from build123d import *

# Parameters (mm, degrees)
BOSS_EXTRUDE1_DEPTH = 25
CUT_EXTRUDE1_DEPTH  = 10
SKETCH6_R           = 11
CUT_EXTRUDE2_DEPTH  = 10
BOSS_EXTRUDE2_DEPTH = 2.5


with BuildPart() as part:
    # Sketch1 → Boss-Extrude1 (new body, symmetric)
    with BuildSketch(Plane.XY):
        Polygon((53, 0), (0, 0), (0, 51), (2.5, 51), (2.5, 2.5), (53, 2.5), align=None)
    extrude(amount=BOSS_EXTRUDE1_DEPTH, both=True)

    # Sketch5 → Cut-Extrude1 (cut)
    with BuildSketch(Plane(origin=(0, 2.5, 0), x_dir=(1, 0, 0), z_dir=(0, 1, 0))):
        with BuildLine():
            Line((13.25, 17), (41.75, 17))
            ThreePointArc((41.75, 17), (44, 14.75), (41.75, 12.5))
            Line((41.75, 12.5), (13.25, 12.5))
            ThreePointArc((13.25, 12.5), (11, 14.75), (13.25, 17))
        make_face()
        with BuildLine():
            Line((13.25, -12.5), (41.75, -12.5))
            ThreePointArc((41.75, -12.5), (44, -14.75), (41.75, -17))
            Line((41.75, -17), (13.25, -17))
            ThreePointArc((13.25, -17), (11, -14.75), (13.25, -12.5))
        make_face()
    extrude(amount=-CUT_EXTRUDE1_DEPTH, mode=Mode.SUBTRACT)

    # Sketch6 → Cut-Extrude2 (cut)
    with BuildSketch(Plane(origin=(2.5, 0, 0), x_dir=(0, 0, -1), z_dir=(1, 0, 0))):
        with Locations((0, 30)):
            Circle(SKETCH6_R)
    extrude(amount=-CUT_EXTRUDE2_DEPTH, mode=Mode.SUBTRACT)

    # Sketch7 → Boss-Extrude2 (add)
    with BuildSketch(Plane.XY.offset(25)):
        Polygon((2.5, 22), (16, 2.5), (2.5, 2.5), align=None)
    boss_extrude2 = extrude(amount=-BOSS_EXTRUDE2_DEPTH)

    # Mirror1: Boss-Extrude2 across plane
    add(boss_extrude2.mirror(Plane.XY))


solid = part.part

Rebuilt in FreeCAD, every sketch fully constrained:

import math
import FreeCAD as App
import Part
import Sketcher
from FreeCAD import Vector
Q = App.Units.Quantity


def add_polygon(sketch, points):
    """Adds a closed chain of lines whose ends are joined by coincident constraints."""
    first, n = sketch.GeometryCount, len(points)
    for a, b in zip(points, points[1:] + points[:1]):
        sketch.addGeometry(Part.LineSegment(App.Vector(*a, 0), App.Vector(*b, 0)), False)
    for i in range(n):
        sketch.addConstraint(Sketcher.Constraint("Coincident", first + i, 2, first + (i + 1) % n, 1))

doc = App.newDocument("Part")
params = doc.addObject("Spreadsheet::Sheet", "Params")
for row, (alias, value) in enumerate([
    ("sketch1_width", "53 mm"),
    ("sketch1_height", "51 mm"),
    ("sketch1_width2", "50.5 mm"),
    ("pad1_length", "50 mm"),
    ("sketch2_radius", "2.25 mm"),
    ("sketch2_width", "28.5 mm"),
    ("pocket1_length", "10 mm"),
    ("sketch3_diameter", "22 mm"),
    ("pocket2_length", "10 mm"),
    ("sketch4_width", "13.5 mm"),
    ("sketch4_height", "19.5 mm"),
    ("pad2_length", "2.5 mm"),
], start=1):
    params.set(f"A{row}", alias)
    params.set(f"B{row}", "=" + value)
    params.setAlias(f"B{row}", alias)

body = doc.addObject("PartDesign::Body", "Body")

sketch1 = doc.addObject("Sketcher::SketchObject", "Sketch")
body.addObject(sketch1)
sketch1.AttachmentSupport = (doc.XY_Plane, [""])
sketch1.MapMode = "FlatFace"
add_polygon(sketch1, [(0, 0), (53, 0), (53, 2.5), (2.5, 2.5), (2.5, 51), (0, 51)])
sketch1.addConstraint([
    Sketcher.Constraint("Horizontal", 0),
    Sketcher.Constraint("Vertical", 1),
    Sketcher.Constraint("Horizontal", 2),
    Sketcher.Constraint("Vertical", 3),
    Sketcher.Constraint("Horizontal", 4),
    Sketcher.Constraint("Vertical", 5),
    Sketcher.Constraint("Coincident", 5, 2, -1, 1),
    Sketcher.Constraint("Equal", 4, 1),
    Sketcher.Constraint("DistanceX", 0, 1, 0, 2, Q("53 mm")),
    Sketcher.Constraint("DistanceY", 5, 2, 5, 1, Q("51 mm")),
    Sketcher.Constraint("DistanceX", 2, 2, 2, 1, Q("50.5 mm")),
])
sketch1.setExpression("Constraints[14]", "Params.sketch1_width")
sketch1.setExpression("Constraints[15]", "Params.sketch1_height")
sketch1.setExpression("Constraints[16]", "Params.sketch1_width2")
pad1 = doc.addObject("PartDesign::Pad", "Pad")
body.addObject(pad1)
pad1.Profile = sketch1
pad1.setExpression("Length", "Params.pad1_length")
pad1.Midplane = True

sketch2 = doc.addObject("Sketcher::SketchObject", "Sketch001")
body.addObject(sketch2)
sketch2.AttachmentSupport = (doc.XZ_Plane, [""])
sketch2.MapMode = "FlatFace"
sketch2.AttachmentOffset = App.Placement(Vector(0, 0, -2.5), App.Rotation())
sketch2.addGeometry([
    Part.LineSegment(Vector(41.8, -17, 0), Vector(13.2, -17, 0)),
    Part.ArcOfCircle(Part.Circle(Vector(13.2, -14.8, 0), Vector(0, 0, 1), 2.2), math.radians(90), math.radians(270)),
    Part.LineSegment(Vector(13.2, -12.5, 0), Vector(41.8, -12.5, 0)),
    Part.ArcOfCircle(Part.Circle(Vector(41.8, -14.8, 0), Vector(0, 0, 1), 2.2), math.radians(-90), math.radians(90)),
    Part.LineSegment(Vector(41.8, 12.5, 0), Vector(13.2, 12.5, 0)),
    Part.ArcOfCircle(Part.Circle(Vector(13.2, 14.8, 0), Vector(0, 0, 1), 2.2), math.radians(90), math.radians(270)),
    Part.LineSegment(Vector(13.2, 17, 0), Vector(41.8, 17, 0)),
    Part.ArcOfCircle(Part.Circle(Vector(41.8, 14.8, 0), Vector(0, 0, 1), 2.2), math.radians(-90), math.radians(90)),
], False)
sketch2.addConstraint([
    Sketcher.Constraint("Tangent", 0, 2, 1, 2),
    Sketcher.Constraint("Tangent", 1, 1, 2, 1),
    Sketcher.Constraint("Tangent", 2, 2, 3, 2),
    Sketcher.Constraint("Tangent", 3, 1, 0, 1),
    Sketcher.Constraint("Tangent", 4, 2, 5, 2),
    Sketcher.Constraint("Tangent", 5, 1, 6, 1),
    Sketcher.Constraint("Tangent", 6, 2, 7, 2),
    Sketcher.Constraint("Tangent", 7, 1, 4, 1),
    Sketcher.Constraint("Horizontal", 0),
    Sketcher.Constraint("Horizontal", 2),
    Sketcher.Constraint("Horizontal", 4),
    Sketcher.Constraint("Horizontal", 6),
    Sketcher.Constraint("Equal", 3, 5),
    Sketcher.Constraint("Symmetric", 1, 3, 5, 3, -1),
    Sketcher.Constraint("Vertical", 3, 3, 7, 3),
    Sketcher.Constraint("Radius", 1, Q("2.25 mm")),
    Sketcher.Constraint("DistanceX", 0, 2, 0, 1, Q("28.5 mm")),
    Sketcher.Constraint("DistanceY", 0, 2, -1, 1, Q("17 mm")),
    Sketcher.Constraint("DistanceX", -1, 1, 1, 3, Q("13.25 mm")),
])
sketch2.setExpression("Constraints[15]", "Params.sketch2_radius")
sketch2.setExpression("Constraints[16]", "Params.sketch2_width")
pocket1 = doc.addObject("PartDesign::Pocket", "Pocket")
body.addObject(pocket1)
pocket1.Profile = sketch2
pocket1.setExpression("Length", "Params.pocket1_length")
pocket1.Reversed = True

sketch3 = doc.addObject("Sketcher::SketchObject", "Sketch002")
body.addObject(sketch3)
sketch3.AttachmentSupport = (doc.YZ_Plane, [""])
sketch3.MapMode = "FlatFace"
sketch3.AttachmentOffset = App.Placement(Vector(0, 0, 2.5), App.Rotation())
sketch3.addGeometry(Part.Circle(Vector(30, 0, 0), Vector(0, 0, 1), 11), False)
sketch3.addConstraint([
    Sketcher.Constraint("PointOnObject", 0, 3, -1),
    Sketcher.Constraint("Diameter", 0, Q("22 mm")),
    Sketcher.Constraint("DistanceX", -1, 1, 0, 3, Q("30 mm")),
])
sketch3.setExpression("Constraints[1]", "Params.sketch3_diameter")
pocket2 = doc.addObject("PartDesign::Pocket", "Pocket001")
body.addObject(pocket2)
pocket2.Profile = sketch3
pocket2.setExpression("Length", "Params.pocket2_length")

sketch4 = doc.addObject("Sketcher::SketchObject", "Sketch003")
body.addObject(sketch4)
sketch4.AttachmentSupport = (doc.XY_Plane, [""])
sketch4.MapMode = "FlatFace"
sketch4.AttachmentOffset = App.Placement(Vector(0, 0, 25), App.Rotation())
add_polygon(sketch4, [(16, 2), (2, 22), (2, 2)])
sketch4.addConstraint([
    Sketcher.Constraint("Vertical", 1),
    Sketcher.Constraint("Horizontal", 2),
    Sketcher.Constraint("DistanceX", 2, 1, 2, 2, Q("13.5 mm")),
    Sketcher.Constraint("DistanceY", 1, 2, 1, 1, Q("19.5 mm")),
    Sketcher.Constraint("DistanceY", -1, 1, 0, 2, Q("22 mm")),
    Sketcher.Constraint("DistanceX", -1, 1, 2, 2, Q("16 mm")),
])
sketch4.setExpression("Constraints[5]", "Params.sketch4_width")
sketch4.setExpression("Constraints[6]", "Params.sketch4_height")
pad2 = doc.addObject("PartDesign::Pad", "Pad001")
body.addObject(pad2)
pad2.Profile = sketch4
pad2.setExpression("Length", "Params.pad2_length")
pad2.Reversed = True
doc.recompute()

mirrored = doc.addObject("PartDesign::Mirrored", "Mirrored")
body.addObject(mirrored)
mirrored.Originals = [pad2]
mirrored.MirrorPlane = (doc.XY_Plane, [""])
body.Tip = mirrored

doc.recompute()
